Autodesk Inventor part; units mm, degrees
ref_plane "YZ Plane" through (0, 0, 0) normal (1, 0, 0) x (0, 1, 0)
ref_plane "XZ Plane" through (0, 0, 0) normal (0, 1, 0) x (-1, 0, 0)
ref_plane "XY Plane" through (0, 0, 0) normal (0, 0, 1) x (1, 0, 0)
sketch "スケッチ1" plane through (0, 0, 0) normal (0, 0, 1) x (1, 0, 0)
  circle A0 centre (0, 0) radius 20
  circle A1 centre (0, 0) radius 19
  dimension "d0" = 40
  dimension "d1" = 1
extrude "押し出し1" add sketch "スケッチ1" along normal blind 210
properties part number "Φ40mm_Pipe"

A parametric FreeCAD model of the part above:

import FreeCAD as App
import Part
import Sketcher

V = App.Vector

doc = App.newDocument("Part")
body = doc.addObject("PartDesign::Body", "Body")

# Sketch on XY plane
sketch1 = body.newObject("Sketcher::SketchObject", "Sketch")
sketch1.AttachmentSupport = (doc.getObject("XY_Plane"), [""])
sketch1.MapMode = "FlatFace"
sketch1.addGeometry(Part.Circle(V(0, 0, 0), V(0, 0, 1), 20), False)
sketch1.addGeometry(Part.Circle(V(0, 0, 0), V(0, 0, 1), 19), False)
sketch1.addConstraint(Sketcher.Constraint("Coincident", 0, 3, -1, 1))
sketch1.addConstraint(Sketcher.Constraint("Coincident", 1, 3, -1, 1))
sketch1.addConstraint(Sketcher.Constraint("Diameter", 0, 40.0))
sketch1.addConstraint(Sketcher.Constraint("Diameter", 1, 38.0))
pad1 = body.newObject("PartDesign::Pad", "Pad")
pad1.Profile = sketch1
pad1.Length = 210

doc.recompute()
